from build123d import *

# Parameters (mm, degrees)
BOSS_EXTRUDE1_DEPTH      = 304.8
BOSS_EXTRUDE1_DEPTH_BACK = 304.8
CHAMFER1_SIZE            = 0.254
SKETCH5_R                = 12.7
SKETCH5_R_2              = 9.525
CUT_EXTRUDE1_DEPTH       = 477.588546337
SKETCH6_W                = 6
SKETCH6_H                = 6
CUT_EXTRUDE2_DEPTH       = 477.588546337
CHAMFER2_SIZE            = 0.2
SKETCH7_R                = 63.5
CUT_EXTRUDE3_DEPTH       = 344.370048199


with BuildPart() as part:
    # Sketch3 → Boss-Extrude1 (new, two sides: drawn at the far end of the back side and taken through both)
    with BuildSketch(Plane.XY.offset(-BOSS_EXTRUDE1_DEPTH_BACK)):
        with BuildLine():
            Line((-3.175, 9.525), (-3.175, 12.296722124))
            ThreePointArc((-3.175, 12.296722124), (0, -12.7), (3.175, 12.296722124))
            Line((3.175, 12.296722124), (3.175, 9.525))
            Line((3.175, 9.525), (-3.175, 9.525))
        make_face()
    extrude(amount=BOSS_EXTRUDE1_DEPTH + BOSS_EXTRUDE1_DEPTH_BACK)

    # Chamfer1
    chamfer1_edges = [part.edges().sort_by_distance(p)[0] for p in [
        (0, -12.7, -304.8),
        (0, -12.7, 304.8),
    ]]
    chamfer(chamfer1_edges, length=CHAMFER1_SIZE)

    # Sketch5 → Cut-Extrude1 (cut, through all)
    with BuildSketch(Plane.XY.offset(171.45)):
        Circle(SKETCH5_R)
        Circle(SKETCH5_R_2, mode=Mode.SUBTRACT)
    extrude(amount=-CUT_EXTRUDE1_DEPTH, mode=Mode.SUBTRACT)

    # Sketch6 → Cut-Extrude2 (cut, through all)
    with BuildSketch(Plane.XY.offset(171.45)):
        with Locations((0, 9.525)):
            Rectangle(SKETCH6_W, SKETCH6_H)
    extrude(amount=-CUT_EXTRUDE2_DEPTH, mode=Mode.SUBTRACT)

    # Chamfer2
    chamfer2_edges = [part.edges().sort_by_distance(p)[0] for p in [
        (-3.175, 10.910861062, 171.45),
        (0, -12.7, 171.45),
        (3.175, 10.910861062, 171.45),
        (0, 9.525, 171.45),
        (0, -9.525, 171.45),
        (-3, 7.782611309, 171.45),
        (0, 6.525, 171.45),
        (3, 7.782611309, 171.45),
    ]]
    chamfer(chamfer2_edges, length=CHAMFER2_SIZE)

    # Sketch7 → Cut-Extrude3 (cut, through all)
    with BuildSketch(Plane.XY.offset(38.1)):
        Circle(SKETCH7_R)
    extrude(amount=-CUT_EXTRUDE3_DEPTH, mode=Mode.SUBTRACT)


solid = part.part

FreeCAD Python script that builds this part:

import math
import FreeCAD as App
import Part
import Sketcher
Q = App.Units.Quantity


def edges_at(feature, points):
    """Names of the edges that pass closest to the given points."""
    edges = feature.Shape.Edges
    near = lambda p: min(range(len(edges)), key=lambda i: edges[i].distToShape(Part.Vertex(*p))[0])
    return sorted({f"Edge{near(p) + 1}" for p in points})

doc = App.newDocument("Part")
body = doc.addObject("PartDesign::Body", "Body")

# Sketch on XY plane
sketch1 = body.newObject("Sketcher::SketchObject", "Sketch")
sketch1.AttachmentSupport = (doc.getObject("XY_Plane"), [""])
sketch1.MapMode = "FlatFace"
sketch1.addGeometry([
    Part.LineSegment(App.Vector(-3.2, 9.5, 0), App.Vector(-3.2, 12.3, 0)),
    Part.ArcOfCircle(Part.Circle(App.Vector(0, 0, 0), App.Vector(0, 0, 1), 12.7), math.radians(104), math.radians(436)),
    Part.LineSegment(App.Vector(3.2, 12.3, 0), App.Vector(3.2, 9.5, 0)),
    Part.LineSegment(App.Vector(3.2, 9.5, 0), App.Vector(-3.2, 9.5, 0)),
], False)
sketch1.addConstraint([
    Sketcher.Constraint("Coincident", 0, 2, 1, 1),
    Sketcher.Constraint("Coincident", 1, 2, 2, 1),
    Sketcher.Constraint("Coincident", 2, 2, 3, 1),
    Sketcher.Constraint("Coincident", 3, 2, 0, 1),
    Sketcher.Constraint("Vertical", 0),
    Sketcher.Constraint("Vertical", 2),
    Sketcher.Constraint("Horizontal", 3),
    Sketcher.Constraint("Coincident", 1, 3, -1, 1),
    Sketcher.Constraint("Horizontal", 0, 2, 1, 2),
    Sketcher.Constraint("Radius", 1, Q("0.5 in")),
    Sketcher.Constraint("DistanceX", 3, 2, 3, 1, Q("0.25 in")),
    Sketcher.Constraint("DistanceY", -1, 1, 2, 2, Q("0.375 in")),
])
pad1 = body.newObject("PartDesign::Pad", "Pad")
pad1.Profile = sketch1
pad1.Type = "TwoLengths"
pad1.Length = Q("12 in")
pad1.Length2 = Q("12 in")
doc.recompute()

chamfer = body.newObject("PartDesign::Chamfer", "Chamfer")
chamfer.Base = (pad1, edges_at(pad1, [(0, -12.7, -304.8), (0, -12.7, 304.8)]))
chamfer.Size = Q("0.01 in")

# Sketch on XY plane
sketch2 = body.newObject("Sketcher::SketchObject", "Sketch001")
sketch2.AttachmentSupport = (doc.getObject("XY_Plane"), [""])
sketch2.MapMode = "FlatFace"
sketch2.AttachmentOffset = App.Placement(App.Vector(0, 0, 6.75 * 25.4), App.Rotation())
sketch2.addGeometry([
    Part.Circle(App.Vector(0, 0, 0), App.Vector(0, 0, 1), 13),
    Part.Circle(App.Vector(0, 0, 0), App.Vector(0, 0, 1), 10),
], False)
sketch2.addConstraint([
    Sketcher.Constraint("Coincident", 0, 3, -1, 1),
    Sketcher.Constraint("Coincident", 1, 3, -1, 1),
    Sketcher.Constraint("Diameter", 0, Q("1 in")),
    Sketcher.Constraint("Diameter", 1, Q("0.75 in")),
])
pocket1 = body.newObject("PartDesign::Pocket", "Pocket")
pocket1.Profile = sketch2
pocket1.Type = "ThroughAll"

# Sketch on XY plane
sketch3 = body.newObject("Sketcher::SketchObject", "Sketch002")
sketch3.AttachmentSupport = (doc.getObject("XY_Plane"), [""])
sketch3.MapMode = "FlatFace"
sketch3.AttachmentOffset = App.Placement(App.Vector(0, 0, 6.75 * 25.4), App.Rotation())
sketch3.addGeometry([
    Part.LineSegment(App.Vector(-3, 13, 0), App.Vector(-3, 7, 0)),
    Part.LineSegment(App.Vector(-3, 7, 0), App.Vector(3, 7, 0)),
    Part.LineSegment(App.Vector(3, 7, 0), App.Vector(3, 13, 0)),
    Part.LineSegment(App.Vector(3, 13, 0), App.Vector(-3, 13, 0)),
], False)
sketch3.addConstraint([
    Sketcher.Constraint("Coincident", 0, 2, 1, 1),
    Sketcher.Constraint("Coincident", 1, 2, 2, 1),
    Sketcher.Constraint("Coincident", 2, 2, 3, 1),
    Sketcher.Constraint("Coincident", 3, 2, 0, 1),
    Sketcher.Constraint("Vertical", 0),
    Sketcher.Constraint("Horizontal", 1),
    Sketcher.Constraint("Vertical", 2),
    Sketcher.Constraint("Horizontal", 3),
    Sketcher.Constraint("Equal", 3, 0),
    Sketcher.Constraint("DistanceX", 1, 1, 1, 2, Q("6 mm")),
    Sketcher.Constraint("DistanceX", 0, 2, -1, 1, Q("3 mm")),
    Sketcher.Constraint("DistanceY", -1, 1, 0, 2, Q("6.525 mm")),
])
pocket2 = body.newObject("PartDesign::Pocket", "Pocket001")
pocket2.Profile = sketch3
pocket2.Type = "ThroughAll"
doc.recompute()

chamfer2 = body.newObject("PartDesign::Chamfer", "Chamfer001")
chamfer2.Base = (pocket2, edges_at(pocket2, [
    (-3.175, 10.911, 171.45),
    (0, -12.7, 171.45),
    (3.175, 10.911, 171.45),
    (0, 9.525, 171.45),
    (0, -9.525, 171.45),
    (-3, 7.783, 171.45),
    (0, 6.525, 171.45),
    (3, 7.783, 171.45),
]))
chamfer2.Size = 0.2

# Sketch on XY plane
sketch4 = body.newObject("Sketcher::SketchObject", "Sketch003")
sketch4.AttachmentSupport = (doc.getObject("XY_Plane"), [""])
sketch4.MapMode = "FlatFace"
sketch4.AttachmentOffset = App.Placement(App.Vector(0, 0, 1.5 * 25.4), App.Rotation())
sketch4.addGeometry(Part.Circle(App.Vector(0, 0, 0), App.Vector(0, 0, 1), 64), False)
sketch4.addConstraint([
    Sketcher.Constraint("Coincident", 0, 3, -1, 1),
    Sketcher.Constraint("Diameter", 0, Q("5 in")),
])
pocket3 = body.newObject("PartDesign::Pocket", "Pocket002")
pocket3.Profile = sketch4
pocket3.Type = "ThroughAll"

doc.recompute()
